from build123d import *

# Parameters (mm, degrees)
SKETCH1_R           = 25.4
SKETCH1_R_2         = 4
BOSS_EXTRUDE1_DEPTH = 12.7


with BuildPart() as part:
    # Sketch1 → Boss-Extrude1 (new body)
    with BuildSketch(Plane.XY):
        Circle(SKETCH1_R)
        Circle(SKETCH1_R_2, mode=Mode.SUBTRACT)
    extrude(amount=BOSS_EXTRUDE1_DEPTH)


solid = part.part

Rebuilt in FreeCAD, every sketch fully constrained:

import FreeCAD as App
import Part
import Sketcher
from FreeCAD import Vector
Q = App.Units.Quantity

doc = App.newDocument("Part")
params = doc.addObject("Spreadsheet::Sheet", "Params")
for row, (alias, value) in enumerate([
    ("sketch1_diameter", "2 in"),
    ("pad1_length", "0.5 in"),
], start=1):
    params.set(f"A{row}", alias)
    params.set(f"B{row}", "=" + value)
    params.setAlias(f"B{row}", alias)

body = doc.addObject("PartDesign::Body", "Body")

sketch1 = body.newObject("Sketcher::SketchObject", "Sketch")
sketch1.AttachmentSupport = (doc.getObject("XY_Plane"), [""])
sketch1.MapMode = "FlatFace"
sketch1.addGeometry(Part.Circle(Vector(0, 0, 0), Vector(0, 0, 1), 25.4), False)
sketch1.addGeometry(Part.Circle(Vector(0, 0, 0), Vector(0, 0, 1), 4), False)
sketch1.addConstraint(Sketcher.Constraint("Coincident", 0, 3, -1, 1))
sketch1.addConstraint(Sketcher.Constraint("Coincident", 1, 3, -1, 1))
sketch1.addConstraint(Sketcher.Constraint("Diameter", 0, Q("2 in")))
sketch1.addConstraint(Sketcher.Constraint("Diameter", 1, Q("8 mm")))
sketch1.setExpression("Constraints[2]", "Params.sketch1_diameter")
pad1 = body.newObject("PartDesign::Pad", "Pad")
pad1.Profile = sketch1
pad1.setExpression("Length", "Params.pad1_length")

doc.recompute()
